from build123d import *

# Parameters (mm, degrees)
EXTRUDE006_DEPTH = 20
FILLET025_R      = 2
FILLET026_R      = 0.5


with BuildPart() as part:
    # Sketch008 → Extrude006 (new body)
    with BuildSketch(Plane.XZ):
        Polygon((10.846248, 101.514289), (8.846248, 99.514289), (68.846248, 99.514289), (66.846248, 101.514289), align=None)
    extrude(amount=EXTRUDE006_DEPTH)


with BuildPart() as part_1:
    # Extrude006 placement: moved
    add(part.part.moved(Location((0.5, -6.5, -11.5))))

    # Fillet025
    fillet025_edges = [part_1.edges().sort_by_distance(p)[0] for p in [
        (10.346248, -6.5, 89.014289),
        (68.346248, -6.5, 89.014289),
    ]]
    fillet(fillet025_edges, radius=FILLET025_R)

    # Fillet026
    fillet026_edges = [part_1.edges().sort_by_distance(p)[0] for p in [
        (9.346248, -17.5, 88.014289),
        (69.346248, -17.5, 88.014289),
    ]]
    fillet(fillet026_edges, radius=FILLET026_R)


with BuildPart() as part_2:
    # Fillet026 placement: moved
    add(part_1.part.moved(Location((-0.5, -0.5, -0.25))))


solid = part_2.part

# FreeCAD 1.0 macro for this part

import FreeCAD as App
import Part
import Sketcher

V = App.Vector
Q = App.Units.Quantity


def edges_at(feature, points):
    """Names of the edges that pass closest to the given points."""
    edges = feature.Shape.Edges
    near = lambda p: min(range(len(edges)), key=lambda i: edges[i].distToShape(Part.Vertex(*p))[0])
    return sorted({f"Edge{near(p) + 1}" for p in points})

doc = App.newDocument("Part")
body = doc.addObject("PartDesign::Body", "Body")

# Sketch on XZ plane
sketch1 = doc.addObject("Sketcher::SketchObject", "Sketch")
body.addObject(sketch1)
sketch1.AttachmentSupport = (doc.XZ_Plane, [""])
sketch1.MapMode = "FlatFace"
sketch1.addGeometry([
    Part.LineSegment(V(10.8, 101.5, 0), V(8.8, 99.5, 0)),
    Part.LineSegment(V(8.8, 99.5, 0), V(68.8, 99.5, 0)),
    Part.LineSegment(V(68.8, 99.5, 0), V(66.8, 101.5, 0)),
    Part.LineSegment(V(66.8, 101.5, 0), V(10.8, 101.5, 0)),
], False)
sketch1.addConstraint([
    Sketcher.Constraint("Coincident", 0, 2, 1, 1),
    Sketcher.Constraint("Coincident", 1, 2, 2, 1),
    Sketcher.Constraint("Coincident", 2, 2, 3, 1),
    Sketcher.Constraint("Coincident", 3, 2, 0, 1),
    Sketcher.Constraint("Horizontal", 1),
    Sketcher.Constraint("Horizontal", 3),
    Sketcher.Constraint("Perpendicular", 0, 2),
    Sketcher.Constraint("Equal", 0, 2),
    Sketcher.Constraint("DistanceX", 1, 1, 1, 2, Q("60 mm")),
    Sketcher.Constraint("DistanceX", 3, 2, 3, 1, Q("56 mm")),
    Sketcher.Constraint("DistanceY", -1, 1, 0, 2, Q("99.514289 mm")),
    Sketcher.Constraint("DistanceX", -1, 1, 1, 2, Q("68.846248 mm")),
])
pad1 = doc.addObject("PartDesign::Pad", "Pad")
body.addObject(pad1)
pad1.Profile = sketch1
pad1.Length = 20
body2 = doc.addObject("PartDesign::Body", "Body001")
doc.recompute()

body.Placement = App.Placement(V(0.5, -6.5, -11.5), App.Rotation(V(0, 0, 1), 0))
boolean = doc.addObject("PartDesign::Boolean", "Boolean")
body2.addObject(boolean)
boolean.Type = "Fuse"
boolean.addObjects([body])
doc.recompute()

fillet = doc.addObject("PartDesign::Fillet", "Fillet")
body2.addObject(fillet)
fillet.Base = (boolean, edges_at(boolean, [(10.346, -6.5, 89.014), (68.346, -6.5, 89.014)]))
fillet.Radius = 2
doc.recompute()

fillet2 = doc.addObject("PartDesign::Fillet", "Fillet001")
body2.addObject(fillet2)
fillet2.Base = (fillet, edges_at(fillet, [(9.346, -17.5, 88.014), (69.346, -17.5, 88.014)]))
fillet2.Radius = 0.5
body3 = doc.addObject("PartDesign::Body", "Body002")
doc.recompute()

body2.Placement = App.Placement(V(-0.5, -0.5, -0.25), App.Rotation(V(0, 0, 1), 0))
boolean2 = doc.addObject("PartDesign::Boolean", "Boolean001")
body3.addObject(boolean2)
boolean2.Type = "Fuse"
boolean2.addObjects([body2])

doc.recompute()
